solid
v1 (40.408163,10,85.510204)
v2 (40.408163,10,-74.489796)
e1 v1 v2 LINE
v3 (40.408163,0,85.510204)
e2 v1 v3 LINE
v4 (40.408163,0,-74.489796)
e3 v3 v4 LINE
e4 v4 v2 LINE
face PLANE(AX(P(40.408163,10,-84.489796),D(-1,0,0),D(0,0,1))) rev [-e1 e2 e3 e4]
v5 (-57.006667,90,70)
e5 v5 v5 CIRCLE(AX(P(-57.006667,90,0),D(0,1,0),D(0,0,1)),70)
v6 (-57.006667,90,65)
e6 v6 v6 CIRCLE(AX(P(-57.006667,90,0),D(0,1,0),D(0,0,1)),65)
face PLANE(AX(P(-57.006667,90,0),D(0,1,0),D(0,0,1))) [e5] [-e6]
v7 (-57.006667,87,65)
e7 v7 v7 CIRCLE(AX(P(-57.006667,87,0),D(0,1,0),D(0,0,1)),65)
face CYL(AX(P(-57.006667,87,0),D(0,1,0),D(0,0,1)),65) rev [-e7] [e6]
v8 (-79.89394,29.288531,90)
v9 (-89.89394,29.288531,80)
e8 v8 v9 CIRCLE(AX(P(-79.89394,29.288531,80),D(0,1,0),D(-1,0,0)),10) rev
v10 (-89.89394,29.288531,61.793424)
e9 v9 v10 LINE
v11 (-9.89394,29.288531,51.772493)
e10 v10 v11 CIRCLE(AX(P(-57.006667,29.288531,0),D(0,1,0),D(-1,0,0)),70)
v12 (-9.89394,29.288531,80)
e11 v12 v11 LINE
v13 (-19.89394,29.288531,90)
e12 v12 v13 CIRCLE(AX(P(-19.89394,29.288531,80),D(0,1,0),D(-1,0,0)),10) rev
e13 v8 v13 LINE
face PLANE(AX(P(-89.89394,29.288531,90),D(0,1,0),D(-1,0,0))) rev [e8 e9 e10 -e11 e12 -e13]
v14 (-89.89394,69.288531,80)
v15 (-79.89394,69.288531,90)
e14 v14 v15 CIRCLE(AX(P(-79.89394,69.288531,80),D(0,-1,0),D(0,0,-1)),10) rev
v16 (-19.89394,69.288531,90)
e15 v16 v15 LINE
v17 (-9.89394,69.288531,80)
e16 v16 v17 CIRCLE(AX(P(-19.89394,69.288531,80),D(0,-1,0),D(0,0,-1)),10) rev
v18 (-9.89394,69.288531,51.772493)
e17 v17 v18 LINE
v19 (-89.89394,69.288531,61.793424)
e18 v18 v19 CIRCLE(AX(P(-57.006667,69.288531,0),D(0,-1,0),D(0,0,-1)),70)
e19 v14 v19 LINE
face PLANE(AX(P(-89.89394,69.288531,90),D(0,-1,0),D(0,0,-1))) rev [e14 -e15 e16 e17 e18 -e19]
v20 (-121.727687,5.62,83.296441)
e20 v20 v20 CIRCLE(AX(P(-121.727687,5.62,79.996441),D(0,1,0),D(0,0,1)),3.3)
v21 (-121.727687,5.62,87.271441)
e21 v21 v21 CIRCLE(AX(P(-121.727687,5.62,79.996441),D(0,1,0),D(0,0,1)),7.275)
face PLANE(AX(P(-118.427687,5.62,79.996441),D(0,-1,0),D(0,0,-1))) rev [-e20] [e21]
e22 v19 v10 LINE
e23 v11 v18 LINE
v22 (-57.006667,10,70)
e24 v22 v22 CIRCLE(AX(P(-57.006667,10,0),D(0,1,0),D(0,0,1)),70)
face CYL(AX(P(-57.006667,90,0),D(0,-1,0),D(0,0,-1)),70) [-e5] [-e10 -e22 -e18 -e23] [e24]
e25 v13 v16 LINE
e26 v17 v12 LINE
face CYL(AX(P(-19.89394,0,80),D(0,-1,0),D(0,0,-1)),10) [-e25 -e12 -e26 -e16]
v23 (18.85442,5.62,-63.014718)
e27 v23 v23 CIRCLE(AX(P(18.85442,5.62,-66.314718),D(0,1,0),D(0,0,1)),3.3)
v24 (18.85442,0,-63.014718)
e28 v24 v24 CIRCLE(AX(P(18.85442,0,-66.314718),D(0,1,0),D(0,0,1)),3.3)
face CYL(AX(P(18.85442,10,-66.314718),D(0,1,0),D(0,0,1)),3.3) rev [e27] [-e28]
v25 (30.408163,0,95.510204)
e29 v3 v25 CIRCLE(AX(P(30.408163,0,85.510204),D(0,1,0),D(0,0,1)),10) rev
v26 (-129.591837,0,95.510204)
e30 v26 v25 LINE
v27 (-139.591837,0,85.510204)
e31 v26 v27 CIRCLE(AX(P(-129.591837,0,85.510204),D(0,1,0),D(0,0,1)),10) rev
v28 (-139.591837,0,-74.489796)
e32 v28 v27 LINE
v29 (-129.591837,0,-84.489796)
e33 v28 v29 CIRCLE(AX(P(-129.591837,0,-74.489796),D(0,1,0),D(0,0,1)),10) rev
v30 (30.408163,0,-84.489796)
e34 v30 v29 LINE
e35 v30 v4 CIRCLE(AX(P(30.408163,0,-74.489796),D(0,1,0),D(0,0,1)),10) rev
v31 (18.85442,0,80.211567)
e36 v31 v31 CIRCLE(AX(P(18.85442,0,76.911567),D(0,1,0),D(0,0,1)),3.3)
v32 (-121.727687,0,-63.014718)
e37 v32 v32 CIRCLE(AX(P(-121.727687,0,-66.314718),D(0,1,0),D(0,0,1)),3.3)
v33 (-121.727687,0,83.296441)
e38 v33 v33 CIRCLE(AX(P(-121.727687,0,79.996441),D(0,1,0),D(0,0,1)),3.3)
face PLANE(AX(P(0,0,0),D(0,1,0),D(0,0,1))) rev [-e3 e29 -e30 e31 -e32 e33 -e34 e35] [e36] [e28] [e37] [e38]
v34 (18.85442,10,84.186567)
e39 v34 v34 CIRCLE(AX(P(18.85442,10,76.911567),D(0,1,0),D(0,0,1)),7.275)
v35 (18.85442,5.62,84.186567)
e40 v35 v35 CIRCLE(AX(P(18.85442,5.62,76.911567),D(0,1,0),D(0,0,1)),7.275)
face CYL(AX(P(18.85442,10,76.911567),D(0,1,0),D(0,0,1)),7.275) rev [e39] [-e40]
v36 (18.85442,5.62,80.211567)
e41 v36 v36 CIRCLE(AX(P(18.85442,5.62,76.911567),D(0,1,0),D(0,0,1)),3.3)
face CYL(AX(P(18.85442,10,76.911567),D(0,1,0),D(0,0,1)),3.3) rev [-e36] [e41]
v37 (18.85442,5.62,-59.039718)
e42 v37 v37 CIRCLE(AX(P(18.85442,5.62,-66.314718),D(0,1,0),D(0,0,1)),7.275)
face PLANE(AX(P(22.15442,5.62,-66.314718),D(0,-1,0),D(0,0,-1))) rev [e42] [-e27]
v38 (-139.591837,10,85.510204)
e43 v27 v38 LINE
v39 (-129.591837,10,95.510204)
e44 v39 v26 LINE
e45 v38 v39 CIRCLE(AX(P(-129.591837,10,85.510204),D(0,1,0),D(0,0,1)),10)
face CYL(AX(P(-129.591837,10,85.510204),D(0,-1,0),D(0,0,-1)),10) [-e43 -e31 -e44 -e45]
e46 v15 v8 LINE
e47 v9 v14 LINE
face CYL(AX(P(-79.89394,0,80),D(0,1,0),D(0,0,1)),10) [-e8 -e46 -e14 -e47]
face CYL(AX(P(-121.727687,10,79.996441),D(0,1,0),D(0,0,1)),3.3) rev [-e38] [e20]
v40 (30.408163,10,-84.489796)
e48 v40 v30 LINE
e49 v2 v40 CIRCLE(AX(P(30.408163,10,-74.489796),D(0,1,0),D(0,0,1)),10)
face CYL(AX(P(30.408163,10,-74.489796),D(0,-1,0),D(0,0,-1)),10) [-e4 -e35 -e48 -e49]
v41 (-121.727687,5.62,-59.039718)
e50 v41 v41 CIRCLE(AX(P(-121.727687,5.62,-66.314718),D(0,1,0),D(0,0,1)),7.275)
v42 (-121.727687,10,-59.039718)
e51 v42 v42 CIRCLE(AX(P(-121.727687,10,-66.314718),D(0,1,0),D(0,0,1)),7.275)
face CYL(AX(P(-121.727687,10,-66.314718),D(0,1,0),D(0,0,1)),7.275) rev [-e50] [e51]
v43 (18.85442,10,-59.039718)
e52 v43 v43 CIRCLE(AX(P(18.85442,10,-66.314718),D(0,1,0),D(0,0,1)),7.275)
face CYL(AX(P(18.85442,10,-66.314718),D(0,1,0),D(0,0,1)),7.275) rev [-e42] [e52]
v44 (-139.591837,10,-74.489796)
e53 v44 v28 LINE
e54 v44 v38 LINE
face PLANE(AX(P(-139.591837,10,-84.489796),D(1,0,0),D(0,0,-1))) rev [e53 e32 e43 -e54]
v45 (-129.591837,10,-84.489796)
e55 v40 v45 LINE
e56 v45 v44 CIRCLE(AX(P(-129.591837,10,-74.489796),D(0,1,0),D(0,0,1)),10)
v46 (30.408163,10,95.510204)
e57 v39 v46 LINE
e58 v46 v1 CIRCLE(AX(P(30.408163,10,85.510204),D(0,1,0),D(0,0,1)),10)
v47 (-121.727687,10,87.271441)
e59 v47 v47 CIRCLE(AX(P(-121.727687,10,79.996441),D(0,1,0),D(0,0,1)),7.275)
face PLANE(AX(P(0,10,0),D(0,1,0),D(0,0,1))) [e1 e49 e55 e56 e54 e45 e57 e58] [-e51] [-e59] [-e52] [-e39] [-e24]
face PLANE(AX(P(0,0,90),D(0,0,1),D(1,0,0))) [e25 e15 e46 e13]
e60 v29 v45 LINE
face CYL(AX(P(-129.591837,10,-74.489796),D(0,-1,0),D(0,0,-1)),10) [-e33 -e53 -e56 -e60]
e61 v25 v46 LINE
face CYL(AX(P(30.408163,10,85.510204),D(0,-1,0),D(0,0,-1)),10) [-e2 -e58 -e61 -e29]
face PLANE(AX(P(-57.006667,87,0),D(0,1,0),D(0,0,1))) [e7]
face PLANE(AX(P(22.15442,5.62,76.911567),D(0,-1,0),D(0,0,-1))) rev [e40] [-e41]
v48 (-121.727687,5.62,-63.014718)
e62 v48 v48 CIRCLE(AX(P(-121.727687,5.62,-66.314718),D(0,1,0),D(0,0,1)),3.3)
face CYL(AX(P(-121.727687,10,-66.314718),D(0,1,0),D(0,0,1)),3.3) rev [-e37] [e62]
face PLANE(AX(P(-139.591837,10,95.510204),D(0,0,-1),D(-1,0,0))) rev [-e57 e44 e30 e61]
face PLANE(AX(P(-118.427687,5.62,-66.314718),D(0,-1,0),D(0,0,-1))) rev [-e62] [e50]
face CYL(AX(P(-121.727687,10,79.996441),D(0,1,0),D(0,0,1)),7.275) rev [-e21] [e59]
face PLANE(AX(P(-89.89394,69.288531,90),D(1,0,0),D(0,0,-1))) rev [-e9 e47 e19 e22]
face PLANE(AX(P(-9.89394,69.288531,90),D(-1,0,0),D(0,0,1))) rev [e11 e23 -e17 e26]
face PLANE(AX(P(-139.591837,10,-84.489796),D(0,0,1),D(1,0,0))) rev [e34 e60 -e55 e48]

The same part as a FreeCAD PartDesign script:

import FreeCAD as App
import Part
import Sketcher

V = App.Vector


def edges_at(feature, points):
    """Names of the edges that pass closest to the given points."""
    edges = feature.Shape.Edges
    near = lambda p: min(range(len(edges)), key=lambda i: edges[i].distToShape(Part.Vertex(*p))[0])
    return sorted({f"Edge{near(p) + 1}" for p in points})


def add_polygon(sketch, points):
    """Adds a closed chain of lines whose ends are joined by coincident constraints."""
    first, n = sketch.GeometryCount, len(points)
    for a, b in zip(points, points[1:] + points[:1]):
        sketch.addGeometry(Part.LineSegment(App.Vector(*a, 0), App.Vector(*b, 0)), False)
    for i in range(n):
        sketch.addConstraint(Sketcher.Constraint("Coincident", first + i, 2, first + (i + 1) % n, 1))

doc = App.newDocument("Part")
body = doc.addObject("PartDesign::Body", "Body")

sketch1 = body.newObject("Sketcher::SketchObject", "Sketch")
sketch1.AttachmentSupport = (doc.getObject("XZ_Plane"), [""])
sketch1.MapMode = "FlatFace"
add_polygon(sketch1, [(-139.591837, -84.489796), (-139.591837, 95.510204), (40.408163, 95.510204), (40.408163, -84.489796)])
sketch1.addConstraint(Sketcher.Constraint("Vertical", 0))
sketch1.addConstraint(Sketcher.Constraint("Horizontal", 1))
sketch1.addConstraint(Sketcher.Constraint("Vertical", 2))
sketch1.addConstraint(Sketcher.Constraint("Horizontal", 3))
sketch1.addConstraint(Sketcher.Constraint("Equal", 3, 0))
sketch1.addConstraint(Sketcher.Constraint("DistanceX", 1, 1, 1, 2, 180.0))
sketch1.addConstraint(Sketcher.Constraint("DistanceX", 0, 2, -1, 1, 139.591837))
sketch1.addConstraint(Sketcher.Constraint("DistanceY", -1, 1, 0, 2, 95.510204))
pad1 = body.newObject("PartDesign::Pad", "Pad")
pad1.Profile = sketch1
pad1.Length = 10
pad1.Reversed = True

sketch2 = body.newObject("Sketcher::SketchObject", "Sketch001")
sketch2.AttachmentSupport = (doc.getObject("XZ_Plane"), [""])
sketch2.MapMode = "FlatFace"
sketch2.AttachmentOffset = App.Placement(V(0, 0, -10), App.Rotation())
sketch2.addGeometry(Part.Circle(V(-57.006667, 0, 0), V(0, 0, 1), 70), False)
sketch2.addConstraint(Sketcher.Constraint("PointOnObject", 0, 3, -1))
sketch2.addConstraint(Sketcher.Constraint("Diameter", 0, 140.0))
sketch2.addConstraint(Sketcher.Constraint("DistanceX", 0, 3, -1, 1, 57.006667))
pad2 = body.newObject("PartDesign::Pad", "Pad001")
pad2.Profile = sketch2
pad2.Length = 80
pad2.Reversed = True

sketch3 = body.newObject("Sketcher::SketchObject", "Sketch002")
sketch3.AttachmentSupport = (doc.getObject("XY_Plane"), [""])
sketch3.MapMode = "FlatFace"
add_polygon(sketch3, [(-89.89394, 69.288531), (-89.89394, 29.288531), (-9.89394, 29.288531), (-9.89394, 69.288531)])
sketch3.addConstraint(Sketcher.Constraint("Vertical", 0))
sketch3.addConstraint(Sketcher.Constraint("Horizontal", 1))
sketch3.addConstraint(Sketcher.Constraint("Vertical", 2))
sketch3.addConstraint(Sketcher.Constraint("Horizontal", 3))
sketch3.addConstraint(Sketcher.Constraint("DistanceX", 1, 1, 1, 2, 80.0))
sketch3.addConstraint(Sketcher.Constraint("DistanceY", 0, 2, 0, 1, 40.0))
sketch3.addConstraint(Sketcher.Constraint("DistanceX", 0, 2, -1, 1, 89.89394))
sketch3.addConstraint(Sketcher.Constraint("DistanceY", -1, 1, 0, 2, 29.288531))
pad3 = body.newObject("PartDesign::Pad", "Pad002")
pad3.Profile = sketch3
pad3.Length = 90

sketch4 = body.newObject("Sketcher::SketchObject", "Sketch003")
sketch4.AttachmentSupport = (doc.getObject("XZ_Plane"), [""])
sketch4.MapMode = "FlatFace"
sketch4.AttachmentOffset = App.Placement(V(0, 0, -90), App.Rotation())
sketch4.addGeometry(Part.Circle(V(-57.006667, 0, 0), V(0, 0, 1), 65), False)
sketch4.addConstraint(Sketcher.Constraint("PointOnObject", 0, 3, -1))
sketch4.addConstraint(Sketcher.Constraint("Diameter", 0, 130.0))
sketch4.addConstraint(Sketcher.Constraint("DistanceX", 0, 3, -1, 1, 57.006667))
pocket1 = body.newObject("PartDesign::Pocket", "Pocket")
pocket1.Profile = sketch4
pocket1.Length = 3
pocket1.Reversed = True

sketch5 = body.newObject("Sketcher::SketchObject", "Sketch004")
sketch5.AttachmentSupport = (doc.getObject("XZ_Plane"), [""])
sketch5.MapMode = "FlatFace"
sketch5.AttachmentOffset = App.Placement(V(0, 0, -10), App.Rotation())
sketch5.addGeometry(Part.Circle(V(-121.727687, -66.314718, 0), V(0, 0, 1), 3.3), False)
sketch5.addGeometry(Part.Circle(V(18.85442, -66.314718, 0), V(0, 0, 1), 3.3), False)
sketch5.addGeometry(Part.Circle(V(18.85442, 76.911567, 0), V(0, 0, 1), 3.3), False)
sketch5.addGeometry(Part.Circle(V(-121.727687, 79.996441, 0), V(0, 0, 1), 3.3), False)
sketch5.addConstraint(Sketcher.Constraint("Equal", 0, 1))
sketch5.addConstraint(Sketcher.Constraint("Equal", 1, 2))
sketch5.addConstraint(Sketcher.Constraint("Equal", 2, 3))
sketch5.addConstraint(Sketcher.Constraint("Horizontal", 0, 3, 1, 3))
sketch5.addConstraint(Sketcher.Constraint("Vertical", 1, 3, 2, 3))
sketch5.addConstraint(Sketcher.Constraint("Vertical", 0, 3, 3, 3))
sketch5.addConstraint(Sketcher.Constraint("Diameter", 0, 6.6))
sketch5.addConstraint(Sketcher.Constraint("DistanceY", 0, 3, -1, 1, 66.314718))
sketch5.addConstraint(Sketcher.Constraint("DistanceX", -1, 1, 1, 3, 18.85442))
sketch5.addConstraint(Sketcher.Constraint("DistanceY", -1, 1, 3, 3, 79.996441))
sketch5.addConstraint(Sketcher.Constraint("DistanceX", 0, 3, -1, 1, 121.727687))
sketch5.addConstraint(Sketcher.Constraint("DistanceY", -1, 1, 2, 3, 76.911567))
doc.recompute()
hole = body.newObject("PartDesign::Hole", "Hole")
hole.Profile = sketch5
hole.ThreadType = "None"
hole.Diameter = 6.6
hole.DepthType = "ThroughAll"
hole.HoleCutType = "Counterbore"
hole.HoleCutDiameter = 14.55
hole.HoleCutDepth = 4.38
hole.Reversed = True
doc.recompute()

fillet = body.newObject("PartDesign::Fillet", "Fillet")
fillet.Base = (hole, edges_at(hole, [
    (-89.894, 49.289, 90),
    (-9.894, 49.289, 90),
    (-139.592, 5, -84.49),
    (40.408, 5, -84.49),
    (40.408, 5, 95.51),
    (-139.592, 5, 95.51),
]))
fillet.Radius = 10

doc.recompute()
